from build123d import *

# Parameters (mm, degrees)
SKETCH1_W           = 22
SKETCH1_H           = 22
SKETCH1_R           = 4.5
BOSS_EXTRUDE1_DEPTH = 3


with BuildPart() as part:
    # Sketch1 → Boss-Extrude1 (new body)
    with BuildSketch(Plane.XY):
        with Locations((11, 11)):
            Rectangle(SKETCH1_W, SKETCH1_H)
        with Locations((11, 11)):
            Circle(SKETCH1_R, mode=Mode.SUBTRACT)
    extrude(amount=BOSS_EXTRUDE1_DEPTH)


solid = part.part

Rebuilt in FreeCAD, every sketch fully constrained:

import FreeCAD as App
import Part
import Sketcher


def add_polygon(sketch, points):
    """Adds a closed chain of lines whose ends are joined by coincident constraints."""
    first, n = sketch.GeometryCount, len(points)
    for a, b in zip(points, points[1:] + points[:1]):
        sketch.addGeometry(Part.LineSegment(App.Vector(*a, 0), App.Vector(*b, 0)), False)
    for i in range(n):
        sketch.addConstraint(Sketcher.Constraint("Coincident", first + i, 2, first + (i + 1) % n, 1))

doc = App.newDocument("Part")
params = doc.addObject("Spreadsheet::Sheet", "Params")
for row, (alias, value) in enumerate([
    ("sketch1_diameter", "9 mm"),
    ("sketch1_width", "22 mm"),
    ("pad1_length", "3 mm"),
], start=1):
    params.set(f"A{row}", alias)
    params.set(f"B{row}", "=" + value)
    params.setAlias(f"B{row}", alias)

body = doc.addObject("PartDesign::Body", "Body")

# Sketch on XY plane
sketch1 = body.newObject("Sketcher::SketchObject", "Sketch")
sketch1.AttachmentSupport = (doc.getObject("XY_Plane"), [""])
sketch1.MapMode = "FlatFace"
add_polygon(sketch1, [(0, 22), (0, 0), (22, 0), (22, 22)])  # lines 0-3
sketch1.addGeometry(Part.Circle(App.Vector(11, 11, 0), App.Vector(0, 0, 1), 4.5), False)  # 4
sketch1.addConstraint([
    Sketcher.Constraint("Vertical", 0),
    Sketcher.Constraint("Horizontal", 1),
    Sketcher.Constraint("Vertical", 2),
    Sketcher.Constraint("Horizontal", 3),
    Sketcher.Constraint("Coincident", 0, 2, -1, 1),
    Sketcher.Constraint("Equal", 3, 0),
    Sketcher.Constraint("Diameter", 4, 9.0),
    Sketcher.Constraint("DistanceX", 1, 1, 1, 2, 22.0),
    Sketcher.Constraint("DistanceX", -1, 1, 4, 3, 11.0),
    Sketcher.Constraint("DistanceY", -1, 1, 4, 3, 11.0),
])
sketch1.setExpression("Constraints[10]", "Params.sketch1_diameter")
sketch1.setExpression("Constraints[11]", "Params.sketch1_width")
pad1 = body.newObject("PartDesign::Pad", "Pad")
pad1.Profile = sketch1
pad1.setExpression("Length", "Params.pad1_length")

doc.recompute()
